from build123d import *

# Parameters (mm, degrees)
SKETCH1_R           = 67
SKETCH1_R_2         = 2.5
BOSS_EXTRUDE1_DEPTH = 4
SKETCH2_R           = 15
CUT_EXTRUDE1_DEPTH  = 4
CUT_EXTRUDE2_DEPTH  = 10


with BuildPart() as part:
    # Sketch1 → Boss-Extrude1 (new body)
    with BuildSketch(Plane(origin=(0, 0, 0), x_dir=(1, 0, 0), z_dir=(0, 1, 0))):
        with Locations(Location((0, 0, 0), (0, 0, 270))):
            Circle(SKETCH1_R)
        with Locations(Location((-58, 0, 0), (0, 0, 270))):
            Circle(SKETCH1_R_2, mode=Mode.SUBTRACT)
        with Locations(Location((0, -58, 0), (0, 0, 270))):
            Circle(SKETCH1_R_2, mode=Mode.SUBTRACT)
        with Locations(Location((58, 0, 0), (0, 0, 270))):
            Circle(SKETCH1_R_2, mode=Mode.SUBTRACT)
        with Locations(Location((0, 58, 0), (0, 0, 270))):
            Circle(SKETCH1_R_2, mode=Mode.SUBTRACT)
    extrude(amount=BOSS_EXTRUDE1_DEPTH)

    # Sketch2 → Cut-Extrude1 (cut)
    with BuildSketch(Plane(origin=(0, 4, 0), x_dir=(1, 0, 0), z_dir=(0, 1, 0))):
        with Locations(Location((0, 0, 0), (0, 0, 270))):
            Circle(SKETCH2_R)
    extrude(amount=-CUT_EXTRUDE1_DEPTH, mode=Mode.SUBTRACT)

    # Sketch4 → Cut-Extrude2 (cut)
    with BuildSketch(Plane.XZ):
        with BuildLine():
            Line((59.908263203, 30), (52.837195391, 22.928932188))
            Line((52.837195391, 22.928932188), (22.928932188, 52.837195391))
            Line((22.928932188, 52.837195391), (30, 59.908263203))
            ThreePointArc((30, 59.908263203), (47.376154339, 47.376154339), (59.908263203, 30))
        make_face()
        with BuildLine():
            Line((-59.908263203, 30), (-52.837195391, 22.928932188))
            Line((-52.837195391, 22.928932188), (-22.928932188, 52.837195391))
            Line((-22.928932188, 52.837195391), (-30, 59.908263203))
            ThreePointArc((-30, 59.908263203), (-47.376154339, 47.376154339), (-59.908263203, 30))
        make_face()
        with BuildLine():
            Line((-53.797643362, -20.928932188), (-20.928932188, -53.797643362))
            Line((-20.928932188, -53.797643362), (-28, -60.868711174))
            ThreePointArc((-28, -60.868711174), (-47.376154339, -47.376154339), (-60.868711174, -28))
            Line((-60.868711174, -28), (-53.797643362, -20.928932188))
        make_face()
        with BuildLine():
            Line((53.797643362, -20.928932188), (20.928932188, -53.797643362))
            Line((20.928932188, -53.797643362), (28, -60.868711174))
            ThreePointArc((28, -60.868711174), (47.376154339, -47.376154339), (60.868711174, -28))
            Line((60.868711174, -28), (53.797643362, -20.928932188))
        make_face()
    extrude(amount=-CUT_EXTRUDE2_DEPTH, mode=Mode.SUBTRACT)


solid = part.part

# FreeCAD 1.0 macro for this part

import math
import FreeCAD as App
import Part
import Sketcher

V = App.Vector
Q = App.Units.Quantity

doc = App.newDocument("Part")
body = doc.addObject("PartDesign::Body", "Body")

sketch1 = body.newObject("Sketcher::SketchObject", "Sketch")
sketch1.AttachmentSupport = (doc.getObject("XZ_Plane"), [""])
sketch1.MapMode = "FlatFace"
sketch1.addGeometry([
    Part.Circle(V(0, 0, 0), V(0, 0, 1), 67),
    Part.Circle(V(0, -58, 0), V(0, 0, 1), 2.5),
    Part.Circle(V(-58, 0, 0), V(0, 0, 1), 2.5),
    Part.Circle(V(58, 0, 0), V(0, 0, 1), 2.5),
    Part.Circle(V(0, 58, 0), V(0, 0, 1), 2.5),
], False)
sketch1.addConstraint([
    Sketcher.Constraint("Coincident", 0, 3, -1, 1),
    Sketcher.Constraint("Equal", 1, 2),
    Sketcher.Constraint("Equal", 2, 3),
    Sketcher.Constraint("Equal", 3, 4),
    Sketcher.Constraint("Symmetric", 2, 3, 3, 3, -1, 1),
    Sketcher.Constraint("Symmetric", 1, 3, 4, 3, -1, 1),
    Sketcher.Constraint("PointOnObject", 1, 3, -2),
    Sketcher.Constraint("PointOnObject", 2, 3, -1),
    Sketcher.Constraint("Diameter", 0, Q("134 mm")),
    Sketcher.Constraint("Diameter", 1, Q("5 mm")),
    Sketcher.Constraint("DistanceY", 1, 3, -1, 1, Q("58 mm")),
    Sketcher.Constraint("DistanceX", 2, 3, -1, 1, Q("58 mm")),
])
pad1 = body.newObject("PartDesign::Pad", "Pad")
pad1.Profile = sketch1
pad1.Length = 4
pad1.Reversed = True

sketch2 = body.newObject("Sketcher::SketchObject", "Sketch001")
sketch2.AttachmentSupport = (doc.getObject("XZ_Plane"), [""])
sketch2.MapMode = "FlatFace"
sketch2.AttachmentOffset = App.Placement(V(0, 0, -4), App.Rotation())
sketch2.addGeometry(Part.Circle(V(0, 0, 0), V(0, 0, 1), 15), False)
sketch2.addConstraint([
    Sketcher.Constraint("Coincident", 0, 3, -1, 1),
    Sketcher.Constraint("Diameter", 0, Q("30 mm")),
])
pocket1 = body.newObject("PartDesign::Pocket", "Pocket")
pocket1.Profile = sketch2
pocket1.Length = 4
pocket1.Reversed = True

sketch3 = body.newObject("Sketcher::SketchObject", "Sketch002")
sketch3.AttachmentSupport = (doc.getObject("XZ_Plane"), [""])
sketch3.MapMode = "FlatFace"
sketch3.addGeometry([
    Part.LineSegment(V(53, 23, 0), V(60, 30, 0)),
    Part.ArcOfCircle(Part.Circle(V(0, 0, 0), V(0, 0, 1), 67), math.radians(27), math.radians(63)),
    Part.LineSegment(V(30, 60, 0), V(23, 53, 0)),
    Part.LineSegment(V(23, 53, 0), V(53, 23, 0)),
    Part.LineSegment(V(-60, 30, 0), V(-53, 23, 0)),
    Part.LineSegment(V(-53, 23, 0), V(-23, 53, 0)),
    Part.LineSegment(V(-23, 53, 0), V(-30, 60, 0)),
    Part.ArcOfCircle(Part.Circle(V(0, 0, 0), V(0, 0, 1), 67), math.radians(117), math.radians(153)),
    Part.LineSegment(V(-21, -54, 0), V(-54, -21, 0)),
    Part.LineSegment(V(-54, -21, 0), V(-61, -28, 0)),
    Part.ArcOfCircle(Part.Circle(V(0, 0, 0), V(0, 0, 1), 67), math.radians(-155), math.radians(-115)),
    Part.LineSegment(V(-28, -61, 0), V(-21, -54, 0)),
    Part.LineSegment(V(54, -21, 0), V(21, -54, 0)),
    Part.LineSegment(V(21, -54, 0), V(28, -61, 0)),
    Part.ArcOfCircle(Part.Circle(V(0, 0, 0), V(0, 0, 1), 67), math.radians(-65), math.radians(-25)),
    Part.LineSegment(V(61, -28, 0), V(54, -21, 0)),
], False)
sketch3.addConstraint([
    Sketcher.Constraint("Coincident", 0, 2, 1, 1),
    Sketcher.Constraint("Coincident", 1, 2, 2, 1),
    Sketcher.Constraint("Coincident", 2, 2, 3, 1),
    Sketcher.Constraint("Coincident", 3, 2, 0, 1),
    Sketcher.Constraint("Coincident", 4, 2, 5, 1),
    Sketcher.Constraint("Coincident", 5, 2, 6, 1),
    Sketcher.Constraint("Coincident", 6, 2, 7, 1),
    Sketcher.Constraint("Coincident", 7, 2, 4, 1),
    Sketcher.Constraint("Coincident", 8, 2, 9, 1),
    Sketcher.Constraint("Coincident", 9, 2, 10, 1),
    Sketcher.Constraint("Coincident", 10, 2, 11, 1),
    Sketcher.Constraint("Coincident", 11, 2, 8, 1),
    Sketcher.Constraint("Coincident", 12, 2, 13, 1),
    Sketcher.Constraint("Coincident", 13, 2, 14, 1),
    Sketcher.Constraint("Coincident", 14, 2, 15, 1),
    Sketcher.Constraint("Coincident", 15, 2, 12, 1),
    Sketcher.Constraint("Coincident", 1, 3, -1, 1),
    Sketcher.Constraint("Coincident", 7, 3, -1, 1),
    Sketcher.Constraint("Coincident", 10, 3, -1, 1),
    Sketcher.Constraint("Coincident", 14, 3, -1, 1),
    Sketcher.Constraint("Equal", 1, 7),
    Sketcher.Constraint("Equal", 7, 10),
    Sketcher.Constraint("Equal", 10, 14),
    Sketcher.Constraint("Symmetric", 3, 2, 4, 2, -2),
    Sketcher.Constraint("Symmetric", 2, 2, 5, 2, -2),
    Sketcher.Constraint("Symmetric", 11, 2, 12, 2, -2),
    Sketcher.Constraint("Symmetric", 8, 2, 15, 2, -2),
    Sketcher.Constraint("Parallel", 0, 2),
    Sketcher.Constraint("Perpendicular", 2, 3),
    Sketcher.Constraint("Parallel", 3, 4),
    Sketcher.Constraint("Perpendicular", 4, 5),
    Sketcher.Constraint("Perpendicular", 5, 6),
    Sketcher.Constraint("Parallel", 6, 8),
    Sketcher.Constraint("Perpendicular", 8, 9),
    Sketcher.Constraint("Parallel", 9, 11),
    Sketcher.Constraint("Perpendicular", 12, 13),
    Sketcher.Constraint("Parallel", 13, 15),
    Sketcher.Constraint("Equal", 0, 2),
    Sketcher.Constraint("Equal", 6, 9),
    Sketcher.Constraint("Equal", 9, 11),
    Sketcher.Constraint("Radius", 1, Q("67 mm")),
    Sketcher.Constraint("Distance", 0, Q("10 mm")),
    Sketcher.Constraint("DistanceY", -1, 1, 0, 2, Q("30 mm")),
    Sketcher.Constraint("DistanceY", 9, 2, -1, 1, Q("28 mm")),
])
pocket2 = body.newObject("PartDesign::Pocket", "Pocket001")
pocket2.Profile = sketch3
pocket2.Length = 10

doc.recompute()
